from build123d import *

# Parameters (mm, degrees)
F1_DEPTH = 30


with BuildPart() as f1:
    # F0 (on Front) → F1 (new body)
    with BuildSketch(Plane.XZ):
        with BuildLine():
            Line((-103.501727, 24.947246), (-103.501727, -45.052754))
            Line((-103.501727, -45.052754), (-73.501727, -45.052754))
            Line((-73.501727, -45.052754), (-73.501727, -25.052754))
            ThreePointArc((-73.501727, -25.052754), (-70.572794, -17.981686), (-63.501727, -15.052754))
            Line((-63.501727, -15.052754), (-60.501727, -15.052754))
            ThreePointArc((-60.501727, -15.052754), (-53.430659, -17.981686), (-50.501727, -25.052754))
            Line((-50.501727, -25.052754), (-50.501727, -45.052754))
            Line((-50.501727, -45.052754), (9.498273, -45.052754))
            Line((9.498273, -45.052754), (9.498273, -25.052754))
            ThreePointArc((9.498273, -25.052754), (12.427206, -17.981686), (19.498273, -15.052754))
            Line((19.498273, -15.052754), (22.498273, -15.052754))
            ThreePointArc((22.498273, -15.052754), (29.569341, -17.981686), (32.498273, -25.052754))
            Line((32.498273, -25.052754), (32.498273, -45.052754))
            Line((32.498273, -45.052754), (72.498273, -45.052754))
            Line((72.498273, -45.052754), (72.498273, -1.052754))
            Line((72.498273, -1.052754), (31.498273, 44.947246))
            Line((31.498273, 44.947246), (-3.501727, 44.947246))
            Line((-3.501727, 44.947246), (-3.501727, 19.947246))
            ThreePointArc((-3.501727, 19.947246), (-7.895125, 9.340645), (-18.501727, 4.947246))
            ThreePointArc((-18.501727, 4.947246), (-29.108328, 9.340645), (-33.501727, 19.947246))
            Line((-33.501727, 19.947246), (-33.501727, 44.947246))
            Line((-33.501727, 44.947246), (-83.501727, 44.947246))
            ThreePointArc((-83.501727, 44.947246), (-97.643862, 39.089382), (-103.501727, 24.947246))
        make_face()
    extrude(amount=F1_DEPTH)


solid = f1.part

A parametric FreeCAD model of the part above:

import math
import FreeCAD as App
import Part
import Sketcher

V = App.Vector

doc = App.newDocument("Part")
body = doc.addObject("PartDesign::Body", "Body")

# Sketch on XZ plane
sketch1 = doc.addObject("Sketcher::SketchObject", "Sketch")
body.addObject(sketch1)
sketch1.AttachmentSupport = (doc.XZ_Plane, [""])
sketch1.MapMode = "FlatFace"
sketch1.addGeometry(Part.LineSegment(V(-103.501727, 24.947246, 0), V(-103.501727, -45.052754, 0)), False)
sketch1.addGeometry(Part.LineSegment(V(-103.501727, -45.052754, 0), V(-73.501727, -45.052754, 0)), False)
sketch1.addGeometry(Part.LineSegment(V(-73.501727, -45.052754, 0), V(-73.501727, -25.052754, 0)), False)
sketch1.addGeometry(Part.ArcOfCircle(Part.Circle(V(-63.501726, -25.052755, 0), V(0, 0, 1), 10.000001), math.radians(90.000006), math.radians(179.999994)), False)
sketch1.addGeometry(Part.LineSegment(V(-63.501727, -15.052754, 0), V(-60.501727, -15.052754, 0)), False)
sketch1.addGeometry(Part.ArcOfCircle(Part.Circle(V(-60.501726, -25.052753, 0), V(0, 0, 1), 9.999999), math.radians(-0.000004), math.radians(90.000004)), False)
sketch1.addGeometry(Part.LineSegment(V(-50.501727, -25.052754, 0), V(-50.501727, -45.052754, 0)), False)
sketch1.addGeometry(Part.LineSegment(V(-50.501727, -45.052754, 0), V(9.498273, -45.052754, 0)), False)
sketch1.addGeometry(Part.LineSegment(V(9.498273, -45.052754, 0), V(9.498273, -25.052754, 0)), False)
sketch1.addGeometry(Part.ArcOfCircle(Part.Circle(V(19.498274, -25.052755, 0), V(0, 0, 1), 10.000001), math.radians(90.000006), math.radians(179.999994)), False)
sketch1.addGeometry(Part.LineSegment(V(19.498273, -15.052754, 0), V(22.498273, -15.052754, 0)), False)
sketch1.addGeometry(Part.ArcOfCircle(Part.Circle(V(22.498274, -25.052753, 0), V(0, 0, 1), 9.999999), math.radians(-0.000004), math.radians(90.000004)), False)
sketch1.addGeometry(Part.LineSegment(V(32.498273, -25.052754, 0), V(32.498273, -45.052754, 0)), False)
sketch1.addGeometry(Part.LineSegment(V(32.498273, -45.052754, 0), V(72.498273, -45.052754, 0)), False)
sketch1.addGeometry(Part.LineSegment(V(72.498273, -45.052754, 0), V(72.498273, -1.052754, 0)), False)
sketch1.addGeometry(Part.LineSegment(V(72.498273, -1.052754, 0), V(31.498273, 44.947246, 0)), False)
sketch1.addGeometry(Part.LineSegment(V(31.498273, 44.947246, 0), V(-3.501727, 44.947246, 0)), False)
sketch1.addGeometry(Part.LineSegment(V(-3.501727, 44.947246, 0), V(-3.501727, 19.947246, 0)), False)
sketch1.addGeometry(Part.ArcOfCircle(Part.Circle(V(-18.501728, 19.947247, 0), V(0, 0, 1), 15.000001), math.radians(-89.999997), math.radians(-0.000003)), False)
sketch1.addGeometry(Part.ArcOfCircle(Part.Circle(V(-18.501725, 19.947248, 0), V(0, 0, 1), 15.000002), math.radians(-179.999991), math.radians(-90.000009)), False)
sketch1.addGeometry(Part.LineSegment(V(-33.501727, 19.947246, 0), V(-33.501727, 44.947246, 0)), False)
sketch1.addGeometry(Part.LineSegment(V(-33.501727, 44.947246, 0), V(-83.501727, 44.947246, 0)), False)
sketch1.addGeometry(Part.ArcOfCircle(Part.Circle(V(-83.501727, 24.947246, 0), V(0, 0, 1), 20), math.radians(90.000001), math.radians(179.999999)), False)
sketch1.addConstraint(Sketcher.Constraint("Coincident", 0, 2, 1, 1))
sketch1.addConstraint(Sketcher.Constraint("Coincident", 1, 2, 2, 1))
sketch1.addConstraint(Sketcher.Constraint("Tangent", 2, 2, 3, 2))
sketch1.addConstraint(Sketcher.Constraint("Tangent", 3, 1, 4, 1))
sketch1.addConstraint(Sketcher.Constraint("Tangent", 4, 2, 5, 2))
sketch1.addConstraint(Sketcher.Constraint("Tangent", 5, 1, 6, 1))
sketch1.addConstraint(Sketcher.Constraint("Coincident", 6, 2, 7, 1))
sketch1.addConstraint(Sketcher.Constraint("Coincident", 7, 2, 8, 1))
sketch1.addConstraint(Sketcher.Constraint("Tangent", 8, 2, 9, 2))
sketch1.addConstraint(Sketcher.Constraint("Tangent", 9, 1, 10, 1))
sketch1.addConstraint(Sketcher.Constraint("Tangent", 10, 2, 11, 2))
sketch1.addConstraint(Sketcher.Constraint("Tangent", 11, 1, 12, 1))
sketch1.addConstraint(Sketcher.Constraint("Coincident", 12, 2, 13, 1))
sketch1.addConstraint(Sketcher.Constraint("Coincident", 13, 2, 14, 1))
sketch1.addConstraint(Sketcher.Constraint("Coincident", 14, 2, 15, 1))
sketch1.addConstraint(Sketcher.Constraint("Coincident", 15, 2, 16, 1))
sketch1.addConstraint(Sketcher.Constraint("Coincident", 16, 2, 17, 1))
sketch1.addConstraint(Sketcher.Constraint("Tangent", 17, 2, 18, 2))
sketch1.addConstraint(Sketcher.Constraint("Tangent", 18, 1, 19, 2))
sketch1.addConstraint(Sketcher.Constraint("Tangent", 19, 1, 20, 1))
sketch1.addConstraint(Sketcher.Constraint("Coincident", 20, 2, 21, 1))
sketch1.addConstraint(Sketcher.Constraint("Tangent", 21, 2, 22, 1))
sketch1.addConstraint(Sketcher.Constraint("Tangent", 22, 2, 0, 1))
sketch1.addConstraint(Sketcher.Constraint("Vertical", 0))
sketch1.addConstraint(Sketcher.Constraint("Horizontal", 1))
sketch1.addConstraint(Sketcher.Constraint("Vertical", 2))
sketch1.addConstraint(Sketcher.Constraint("Horizontal", 4))
sketch1.addConstraint(Sketcher.Constraint("Vertical", 6))
sketch1.addConstraint(Sketcher.Constraint("Horizontal", 7))
sketch1.addConstraint(Sketcher.Constraint("Vertical", 8))
sketch1.addConstraint(Sketcher.Constraint("Horizontal", 10))
sketch1.addConstraint(Sketcher.Constraint("Vertical", 12))
sketch1.addConstraint(Sketcher.Constraint("Horizontal", 13))
sketch1.addConstraint(Sketcher.Constraint("Vertical", 14))
sketch1.addConstraint(Sketcher.Constraint("Horizontal", 16))
sketch1.addConstraint(Sketcher.Constraint("Vertical", 17))
sketch1.addConstraint(Sketcher.Constraint("Vertical", 20))
sketch1.addConstraint(Sketcher.Constraint("Horizontal", 21))
sketch1.addConstraint(Sketcher.Constraint("Equal", 3, 5))
sketch1.addConstraint(Sketcher.Constraint("Equal", 5, 9))
sketch1.addConstraint(Sketcher.Constraint("Equal", 9, 11))
sketch1.addConstraint(Sketcher.Constraint("Equal", 18, 19))
sketch1.addConstraint(Sketcher.Constraint("Horizontal", 5, 3, 9, 3))
sketch1.addConstraint(Sketcher.Constraint("Horizontal", 1, 2, 6, 2))
sketch1.addConstraint(Sketcher.Constraint("Horizontal", 7, 2, 12, 2))
sketch1.addConstraint(Sketcher.Constraint("Horizontal", 16, 2, 20, 2))
sketch1.addConstraint(Sketcher.Constraint("Equal", 4, 10))
sketch1.addConstraint(Sketcher.Constraint("Radius", 3, 10.000001))
sketch1.addConstraint(Sketcher.Constraint("Radius", 18, 15.000001))
sketch1.addConstraint(Sketcher.Constraint("Radius", 22, 20.0))
sketch1.addConstraint(Sketcher.Constraint("DistanceX", 1, 1, 1, 2, 30.0))
sketch1.addConstraint(Sketcher.Constraint("DistanceX", 4, 1, 4, 2, 3.0))
sketch1.addConstraint(Sketcher.Constraint("DistanceX", 7, 1, 7, 2, 60.0))
sketch1.addConstraint(Sketcher.Constraint("DistanceX", 13, 1, 13, 2, 40.0))
sketch1.addConstraint(Sketcher.Constraint("DistanceX", 16, 2, 16, 1, 35.0))
sketch1.addConstraint(Sketcher.Constraint("DistanceX", 21, 2, 21, 1, 50.0))
sketch1.addConstraint(Sketcher.Constraint("DistanceY", 0, 2, 0, 1, 70.0))
sketch1.addConstraint(Sketcher.Constraint("DistanceY", 2, 1, 2, 2, 20.0))
sketch1.addConstraint(Sketcher.Constraint("DistanceY", 14, 1, 14, 2, 44.0))
sketch1.addConstraint(Sketcher.Constraint("DistanceY", 17, 2, 17, 1, 25.0))
sketch1.addConstraint(Sketcher.Constraint("DistanceX", 18, 1, 17, 2, 15.0))
sketch1.addConstraint(Sketcher.Constraint("DistanceY", -1, 1, 19, 3, 19.947248))
sketch1.addConstraint(Sketcher.Constraint("DistanceX", 3, 3, -1, 1, 63.501726))
pad1 = doc.addObject("PartDesign::Pad", "Pad")
body.addObject(pad1)
pad1.Profile = sketch1
pad1.Length = 30

doc.recompute()
